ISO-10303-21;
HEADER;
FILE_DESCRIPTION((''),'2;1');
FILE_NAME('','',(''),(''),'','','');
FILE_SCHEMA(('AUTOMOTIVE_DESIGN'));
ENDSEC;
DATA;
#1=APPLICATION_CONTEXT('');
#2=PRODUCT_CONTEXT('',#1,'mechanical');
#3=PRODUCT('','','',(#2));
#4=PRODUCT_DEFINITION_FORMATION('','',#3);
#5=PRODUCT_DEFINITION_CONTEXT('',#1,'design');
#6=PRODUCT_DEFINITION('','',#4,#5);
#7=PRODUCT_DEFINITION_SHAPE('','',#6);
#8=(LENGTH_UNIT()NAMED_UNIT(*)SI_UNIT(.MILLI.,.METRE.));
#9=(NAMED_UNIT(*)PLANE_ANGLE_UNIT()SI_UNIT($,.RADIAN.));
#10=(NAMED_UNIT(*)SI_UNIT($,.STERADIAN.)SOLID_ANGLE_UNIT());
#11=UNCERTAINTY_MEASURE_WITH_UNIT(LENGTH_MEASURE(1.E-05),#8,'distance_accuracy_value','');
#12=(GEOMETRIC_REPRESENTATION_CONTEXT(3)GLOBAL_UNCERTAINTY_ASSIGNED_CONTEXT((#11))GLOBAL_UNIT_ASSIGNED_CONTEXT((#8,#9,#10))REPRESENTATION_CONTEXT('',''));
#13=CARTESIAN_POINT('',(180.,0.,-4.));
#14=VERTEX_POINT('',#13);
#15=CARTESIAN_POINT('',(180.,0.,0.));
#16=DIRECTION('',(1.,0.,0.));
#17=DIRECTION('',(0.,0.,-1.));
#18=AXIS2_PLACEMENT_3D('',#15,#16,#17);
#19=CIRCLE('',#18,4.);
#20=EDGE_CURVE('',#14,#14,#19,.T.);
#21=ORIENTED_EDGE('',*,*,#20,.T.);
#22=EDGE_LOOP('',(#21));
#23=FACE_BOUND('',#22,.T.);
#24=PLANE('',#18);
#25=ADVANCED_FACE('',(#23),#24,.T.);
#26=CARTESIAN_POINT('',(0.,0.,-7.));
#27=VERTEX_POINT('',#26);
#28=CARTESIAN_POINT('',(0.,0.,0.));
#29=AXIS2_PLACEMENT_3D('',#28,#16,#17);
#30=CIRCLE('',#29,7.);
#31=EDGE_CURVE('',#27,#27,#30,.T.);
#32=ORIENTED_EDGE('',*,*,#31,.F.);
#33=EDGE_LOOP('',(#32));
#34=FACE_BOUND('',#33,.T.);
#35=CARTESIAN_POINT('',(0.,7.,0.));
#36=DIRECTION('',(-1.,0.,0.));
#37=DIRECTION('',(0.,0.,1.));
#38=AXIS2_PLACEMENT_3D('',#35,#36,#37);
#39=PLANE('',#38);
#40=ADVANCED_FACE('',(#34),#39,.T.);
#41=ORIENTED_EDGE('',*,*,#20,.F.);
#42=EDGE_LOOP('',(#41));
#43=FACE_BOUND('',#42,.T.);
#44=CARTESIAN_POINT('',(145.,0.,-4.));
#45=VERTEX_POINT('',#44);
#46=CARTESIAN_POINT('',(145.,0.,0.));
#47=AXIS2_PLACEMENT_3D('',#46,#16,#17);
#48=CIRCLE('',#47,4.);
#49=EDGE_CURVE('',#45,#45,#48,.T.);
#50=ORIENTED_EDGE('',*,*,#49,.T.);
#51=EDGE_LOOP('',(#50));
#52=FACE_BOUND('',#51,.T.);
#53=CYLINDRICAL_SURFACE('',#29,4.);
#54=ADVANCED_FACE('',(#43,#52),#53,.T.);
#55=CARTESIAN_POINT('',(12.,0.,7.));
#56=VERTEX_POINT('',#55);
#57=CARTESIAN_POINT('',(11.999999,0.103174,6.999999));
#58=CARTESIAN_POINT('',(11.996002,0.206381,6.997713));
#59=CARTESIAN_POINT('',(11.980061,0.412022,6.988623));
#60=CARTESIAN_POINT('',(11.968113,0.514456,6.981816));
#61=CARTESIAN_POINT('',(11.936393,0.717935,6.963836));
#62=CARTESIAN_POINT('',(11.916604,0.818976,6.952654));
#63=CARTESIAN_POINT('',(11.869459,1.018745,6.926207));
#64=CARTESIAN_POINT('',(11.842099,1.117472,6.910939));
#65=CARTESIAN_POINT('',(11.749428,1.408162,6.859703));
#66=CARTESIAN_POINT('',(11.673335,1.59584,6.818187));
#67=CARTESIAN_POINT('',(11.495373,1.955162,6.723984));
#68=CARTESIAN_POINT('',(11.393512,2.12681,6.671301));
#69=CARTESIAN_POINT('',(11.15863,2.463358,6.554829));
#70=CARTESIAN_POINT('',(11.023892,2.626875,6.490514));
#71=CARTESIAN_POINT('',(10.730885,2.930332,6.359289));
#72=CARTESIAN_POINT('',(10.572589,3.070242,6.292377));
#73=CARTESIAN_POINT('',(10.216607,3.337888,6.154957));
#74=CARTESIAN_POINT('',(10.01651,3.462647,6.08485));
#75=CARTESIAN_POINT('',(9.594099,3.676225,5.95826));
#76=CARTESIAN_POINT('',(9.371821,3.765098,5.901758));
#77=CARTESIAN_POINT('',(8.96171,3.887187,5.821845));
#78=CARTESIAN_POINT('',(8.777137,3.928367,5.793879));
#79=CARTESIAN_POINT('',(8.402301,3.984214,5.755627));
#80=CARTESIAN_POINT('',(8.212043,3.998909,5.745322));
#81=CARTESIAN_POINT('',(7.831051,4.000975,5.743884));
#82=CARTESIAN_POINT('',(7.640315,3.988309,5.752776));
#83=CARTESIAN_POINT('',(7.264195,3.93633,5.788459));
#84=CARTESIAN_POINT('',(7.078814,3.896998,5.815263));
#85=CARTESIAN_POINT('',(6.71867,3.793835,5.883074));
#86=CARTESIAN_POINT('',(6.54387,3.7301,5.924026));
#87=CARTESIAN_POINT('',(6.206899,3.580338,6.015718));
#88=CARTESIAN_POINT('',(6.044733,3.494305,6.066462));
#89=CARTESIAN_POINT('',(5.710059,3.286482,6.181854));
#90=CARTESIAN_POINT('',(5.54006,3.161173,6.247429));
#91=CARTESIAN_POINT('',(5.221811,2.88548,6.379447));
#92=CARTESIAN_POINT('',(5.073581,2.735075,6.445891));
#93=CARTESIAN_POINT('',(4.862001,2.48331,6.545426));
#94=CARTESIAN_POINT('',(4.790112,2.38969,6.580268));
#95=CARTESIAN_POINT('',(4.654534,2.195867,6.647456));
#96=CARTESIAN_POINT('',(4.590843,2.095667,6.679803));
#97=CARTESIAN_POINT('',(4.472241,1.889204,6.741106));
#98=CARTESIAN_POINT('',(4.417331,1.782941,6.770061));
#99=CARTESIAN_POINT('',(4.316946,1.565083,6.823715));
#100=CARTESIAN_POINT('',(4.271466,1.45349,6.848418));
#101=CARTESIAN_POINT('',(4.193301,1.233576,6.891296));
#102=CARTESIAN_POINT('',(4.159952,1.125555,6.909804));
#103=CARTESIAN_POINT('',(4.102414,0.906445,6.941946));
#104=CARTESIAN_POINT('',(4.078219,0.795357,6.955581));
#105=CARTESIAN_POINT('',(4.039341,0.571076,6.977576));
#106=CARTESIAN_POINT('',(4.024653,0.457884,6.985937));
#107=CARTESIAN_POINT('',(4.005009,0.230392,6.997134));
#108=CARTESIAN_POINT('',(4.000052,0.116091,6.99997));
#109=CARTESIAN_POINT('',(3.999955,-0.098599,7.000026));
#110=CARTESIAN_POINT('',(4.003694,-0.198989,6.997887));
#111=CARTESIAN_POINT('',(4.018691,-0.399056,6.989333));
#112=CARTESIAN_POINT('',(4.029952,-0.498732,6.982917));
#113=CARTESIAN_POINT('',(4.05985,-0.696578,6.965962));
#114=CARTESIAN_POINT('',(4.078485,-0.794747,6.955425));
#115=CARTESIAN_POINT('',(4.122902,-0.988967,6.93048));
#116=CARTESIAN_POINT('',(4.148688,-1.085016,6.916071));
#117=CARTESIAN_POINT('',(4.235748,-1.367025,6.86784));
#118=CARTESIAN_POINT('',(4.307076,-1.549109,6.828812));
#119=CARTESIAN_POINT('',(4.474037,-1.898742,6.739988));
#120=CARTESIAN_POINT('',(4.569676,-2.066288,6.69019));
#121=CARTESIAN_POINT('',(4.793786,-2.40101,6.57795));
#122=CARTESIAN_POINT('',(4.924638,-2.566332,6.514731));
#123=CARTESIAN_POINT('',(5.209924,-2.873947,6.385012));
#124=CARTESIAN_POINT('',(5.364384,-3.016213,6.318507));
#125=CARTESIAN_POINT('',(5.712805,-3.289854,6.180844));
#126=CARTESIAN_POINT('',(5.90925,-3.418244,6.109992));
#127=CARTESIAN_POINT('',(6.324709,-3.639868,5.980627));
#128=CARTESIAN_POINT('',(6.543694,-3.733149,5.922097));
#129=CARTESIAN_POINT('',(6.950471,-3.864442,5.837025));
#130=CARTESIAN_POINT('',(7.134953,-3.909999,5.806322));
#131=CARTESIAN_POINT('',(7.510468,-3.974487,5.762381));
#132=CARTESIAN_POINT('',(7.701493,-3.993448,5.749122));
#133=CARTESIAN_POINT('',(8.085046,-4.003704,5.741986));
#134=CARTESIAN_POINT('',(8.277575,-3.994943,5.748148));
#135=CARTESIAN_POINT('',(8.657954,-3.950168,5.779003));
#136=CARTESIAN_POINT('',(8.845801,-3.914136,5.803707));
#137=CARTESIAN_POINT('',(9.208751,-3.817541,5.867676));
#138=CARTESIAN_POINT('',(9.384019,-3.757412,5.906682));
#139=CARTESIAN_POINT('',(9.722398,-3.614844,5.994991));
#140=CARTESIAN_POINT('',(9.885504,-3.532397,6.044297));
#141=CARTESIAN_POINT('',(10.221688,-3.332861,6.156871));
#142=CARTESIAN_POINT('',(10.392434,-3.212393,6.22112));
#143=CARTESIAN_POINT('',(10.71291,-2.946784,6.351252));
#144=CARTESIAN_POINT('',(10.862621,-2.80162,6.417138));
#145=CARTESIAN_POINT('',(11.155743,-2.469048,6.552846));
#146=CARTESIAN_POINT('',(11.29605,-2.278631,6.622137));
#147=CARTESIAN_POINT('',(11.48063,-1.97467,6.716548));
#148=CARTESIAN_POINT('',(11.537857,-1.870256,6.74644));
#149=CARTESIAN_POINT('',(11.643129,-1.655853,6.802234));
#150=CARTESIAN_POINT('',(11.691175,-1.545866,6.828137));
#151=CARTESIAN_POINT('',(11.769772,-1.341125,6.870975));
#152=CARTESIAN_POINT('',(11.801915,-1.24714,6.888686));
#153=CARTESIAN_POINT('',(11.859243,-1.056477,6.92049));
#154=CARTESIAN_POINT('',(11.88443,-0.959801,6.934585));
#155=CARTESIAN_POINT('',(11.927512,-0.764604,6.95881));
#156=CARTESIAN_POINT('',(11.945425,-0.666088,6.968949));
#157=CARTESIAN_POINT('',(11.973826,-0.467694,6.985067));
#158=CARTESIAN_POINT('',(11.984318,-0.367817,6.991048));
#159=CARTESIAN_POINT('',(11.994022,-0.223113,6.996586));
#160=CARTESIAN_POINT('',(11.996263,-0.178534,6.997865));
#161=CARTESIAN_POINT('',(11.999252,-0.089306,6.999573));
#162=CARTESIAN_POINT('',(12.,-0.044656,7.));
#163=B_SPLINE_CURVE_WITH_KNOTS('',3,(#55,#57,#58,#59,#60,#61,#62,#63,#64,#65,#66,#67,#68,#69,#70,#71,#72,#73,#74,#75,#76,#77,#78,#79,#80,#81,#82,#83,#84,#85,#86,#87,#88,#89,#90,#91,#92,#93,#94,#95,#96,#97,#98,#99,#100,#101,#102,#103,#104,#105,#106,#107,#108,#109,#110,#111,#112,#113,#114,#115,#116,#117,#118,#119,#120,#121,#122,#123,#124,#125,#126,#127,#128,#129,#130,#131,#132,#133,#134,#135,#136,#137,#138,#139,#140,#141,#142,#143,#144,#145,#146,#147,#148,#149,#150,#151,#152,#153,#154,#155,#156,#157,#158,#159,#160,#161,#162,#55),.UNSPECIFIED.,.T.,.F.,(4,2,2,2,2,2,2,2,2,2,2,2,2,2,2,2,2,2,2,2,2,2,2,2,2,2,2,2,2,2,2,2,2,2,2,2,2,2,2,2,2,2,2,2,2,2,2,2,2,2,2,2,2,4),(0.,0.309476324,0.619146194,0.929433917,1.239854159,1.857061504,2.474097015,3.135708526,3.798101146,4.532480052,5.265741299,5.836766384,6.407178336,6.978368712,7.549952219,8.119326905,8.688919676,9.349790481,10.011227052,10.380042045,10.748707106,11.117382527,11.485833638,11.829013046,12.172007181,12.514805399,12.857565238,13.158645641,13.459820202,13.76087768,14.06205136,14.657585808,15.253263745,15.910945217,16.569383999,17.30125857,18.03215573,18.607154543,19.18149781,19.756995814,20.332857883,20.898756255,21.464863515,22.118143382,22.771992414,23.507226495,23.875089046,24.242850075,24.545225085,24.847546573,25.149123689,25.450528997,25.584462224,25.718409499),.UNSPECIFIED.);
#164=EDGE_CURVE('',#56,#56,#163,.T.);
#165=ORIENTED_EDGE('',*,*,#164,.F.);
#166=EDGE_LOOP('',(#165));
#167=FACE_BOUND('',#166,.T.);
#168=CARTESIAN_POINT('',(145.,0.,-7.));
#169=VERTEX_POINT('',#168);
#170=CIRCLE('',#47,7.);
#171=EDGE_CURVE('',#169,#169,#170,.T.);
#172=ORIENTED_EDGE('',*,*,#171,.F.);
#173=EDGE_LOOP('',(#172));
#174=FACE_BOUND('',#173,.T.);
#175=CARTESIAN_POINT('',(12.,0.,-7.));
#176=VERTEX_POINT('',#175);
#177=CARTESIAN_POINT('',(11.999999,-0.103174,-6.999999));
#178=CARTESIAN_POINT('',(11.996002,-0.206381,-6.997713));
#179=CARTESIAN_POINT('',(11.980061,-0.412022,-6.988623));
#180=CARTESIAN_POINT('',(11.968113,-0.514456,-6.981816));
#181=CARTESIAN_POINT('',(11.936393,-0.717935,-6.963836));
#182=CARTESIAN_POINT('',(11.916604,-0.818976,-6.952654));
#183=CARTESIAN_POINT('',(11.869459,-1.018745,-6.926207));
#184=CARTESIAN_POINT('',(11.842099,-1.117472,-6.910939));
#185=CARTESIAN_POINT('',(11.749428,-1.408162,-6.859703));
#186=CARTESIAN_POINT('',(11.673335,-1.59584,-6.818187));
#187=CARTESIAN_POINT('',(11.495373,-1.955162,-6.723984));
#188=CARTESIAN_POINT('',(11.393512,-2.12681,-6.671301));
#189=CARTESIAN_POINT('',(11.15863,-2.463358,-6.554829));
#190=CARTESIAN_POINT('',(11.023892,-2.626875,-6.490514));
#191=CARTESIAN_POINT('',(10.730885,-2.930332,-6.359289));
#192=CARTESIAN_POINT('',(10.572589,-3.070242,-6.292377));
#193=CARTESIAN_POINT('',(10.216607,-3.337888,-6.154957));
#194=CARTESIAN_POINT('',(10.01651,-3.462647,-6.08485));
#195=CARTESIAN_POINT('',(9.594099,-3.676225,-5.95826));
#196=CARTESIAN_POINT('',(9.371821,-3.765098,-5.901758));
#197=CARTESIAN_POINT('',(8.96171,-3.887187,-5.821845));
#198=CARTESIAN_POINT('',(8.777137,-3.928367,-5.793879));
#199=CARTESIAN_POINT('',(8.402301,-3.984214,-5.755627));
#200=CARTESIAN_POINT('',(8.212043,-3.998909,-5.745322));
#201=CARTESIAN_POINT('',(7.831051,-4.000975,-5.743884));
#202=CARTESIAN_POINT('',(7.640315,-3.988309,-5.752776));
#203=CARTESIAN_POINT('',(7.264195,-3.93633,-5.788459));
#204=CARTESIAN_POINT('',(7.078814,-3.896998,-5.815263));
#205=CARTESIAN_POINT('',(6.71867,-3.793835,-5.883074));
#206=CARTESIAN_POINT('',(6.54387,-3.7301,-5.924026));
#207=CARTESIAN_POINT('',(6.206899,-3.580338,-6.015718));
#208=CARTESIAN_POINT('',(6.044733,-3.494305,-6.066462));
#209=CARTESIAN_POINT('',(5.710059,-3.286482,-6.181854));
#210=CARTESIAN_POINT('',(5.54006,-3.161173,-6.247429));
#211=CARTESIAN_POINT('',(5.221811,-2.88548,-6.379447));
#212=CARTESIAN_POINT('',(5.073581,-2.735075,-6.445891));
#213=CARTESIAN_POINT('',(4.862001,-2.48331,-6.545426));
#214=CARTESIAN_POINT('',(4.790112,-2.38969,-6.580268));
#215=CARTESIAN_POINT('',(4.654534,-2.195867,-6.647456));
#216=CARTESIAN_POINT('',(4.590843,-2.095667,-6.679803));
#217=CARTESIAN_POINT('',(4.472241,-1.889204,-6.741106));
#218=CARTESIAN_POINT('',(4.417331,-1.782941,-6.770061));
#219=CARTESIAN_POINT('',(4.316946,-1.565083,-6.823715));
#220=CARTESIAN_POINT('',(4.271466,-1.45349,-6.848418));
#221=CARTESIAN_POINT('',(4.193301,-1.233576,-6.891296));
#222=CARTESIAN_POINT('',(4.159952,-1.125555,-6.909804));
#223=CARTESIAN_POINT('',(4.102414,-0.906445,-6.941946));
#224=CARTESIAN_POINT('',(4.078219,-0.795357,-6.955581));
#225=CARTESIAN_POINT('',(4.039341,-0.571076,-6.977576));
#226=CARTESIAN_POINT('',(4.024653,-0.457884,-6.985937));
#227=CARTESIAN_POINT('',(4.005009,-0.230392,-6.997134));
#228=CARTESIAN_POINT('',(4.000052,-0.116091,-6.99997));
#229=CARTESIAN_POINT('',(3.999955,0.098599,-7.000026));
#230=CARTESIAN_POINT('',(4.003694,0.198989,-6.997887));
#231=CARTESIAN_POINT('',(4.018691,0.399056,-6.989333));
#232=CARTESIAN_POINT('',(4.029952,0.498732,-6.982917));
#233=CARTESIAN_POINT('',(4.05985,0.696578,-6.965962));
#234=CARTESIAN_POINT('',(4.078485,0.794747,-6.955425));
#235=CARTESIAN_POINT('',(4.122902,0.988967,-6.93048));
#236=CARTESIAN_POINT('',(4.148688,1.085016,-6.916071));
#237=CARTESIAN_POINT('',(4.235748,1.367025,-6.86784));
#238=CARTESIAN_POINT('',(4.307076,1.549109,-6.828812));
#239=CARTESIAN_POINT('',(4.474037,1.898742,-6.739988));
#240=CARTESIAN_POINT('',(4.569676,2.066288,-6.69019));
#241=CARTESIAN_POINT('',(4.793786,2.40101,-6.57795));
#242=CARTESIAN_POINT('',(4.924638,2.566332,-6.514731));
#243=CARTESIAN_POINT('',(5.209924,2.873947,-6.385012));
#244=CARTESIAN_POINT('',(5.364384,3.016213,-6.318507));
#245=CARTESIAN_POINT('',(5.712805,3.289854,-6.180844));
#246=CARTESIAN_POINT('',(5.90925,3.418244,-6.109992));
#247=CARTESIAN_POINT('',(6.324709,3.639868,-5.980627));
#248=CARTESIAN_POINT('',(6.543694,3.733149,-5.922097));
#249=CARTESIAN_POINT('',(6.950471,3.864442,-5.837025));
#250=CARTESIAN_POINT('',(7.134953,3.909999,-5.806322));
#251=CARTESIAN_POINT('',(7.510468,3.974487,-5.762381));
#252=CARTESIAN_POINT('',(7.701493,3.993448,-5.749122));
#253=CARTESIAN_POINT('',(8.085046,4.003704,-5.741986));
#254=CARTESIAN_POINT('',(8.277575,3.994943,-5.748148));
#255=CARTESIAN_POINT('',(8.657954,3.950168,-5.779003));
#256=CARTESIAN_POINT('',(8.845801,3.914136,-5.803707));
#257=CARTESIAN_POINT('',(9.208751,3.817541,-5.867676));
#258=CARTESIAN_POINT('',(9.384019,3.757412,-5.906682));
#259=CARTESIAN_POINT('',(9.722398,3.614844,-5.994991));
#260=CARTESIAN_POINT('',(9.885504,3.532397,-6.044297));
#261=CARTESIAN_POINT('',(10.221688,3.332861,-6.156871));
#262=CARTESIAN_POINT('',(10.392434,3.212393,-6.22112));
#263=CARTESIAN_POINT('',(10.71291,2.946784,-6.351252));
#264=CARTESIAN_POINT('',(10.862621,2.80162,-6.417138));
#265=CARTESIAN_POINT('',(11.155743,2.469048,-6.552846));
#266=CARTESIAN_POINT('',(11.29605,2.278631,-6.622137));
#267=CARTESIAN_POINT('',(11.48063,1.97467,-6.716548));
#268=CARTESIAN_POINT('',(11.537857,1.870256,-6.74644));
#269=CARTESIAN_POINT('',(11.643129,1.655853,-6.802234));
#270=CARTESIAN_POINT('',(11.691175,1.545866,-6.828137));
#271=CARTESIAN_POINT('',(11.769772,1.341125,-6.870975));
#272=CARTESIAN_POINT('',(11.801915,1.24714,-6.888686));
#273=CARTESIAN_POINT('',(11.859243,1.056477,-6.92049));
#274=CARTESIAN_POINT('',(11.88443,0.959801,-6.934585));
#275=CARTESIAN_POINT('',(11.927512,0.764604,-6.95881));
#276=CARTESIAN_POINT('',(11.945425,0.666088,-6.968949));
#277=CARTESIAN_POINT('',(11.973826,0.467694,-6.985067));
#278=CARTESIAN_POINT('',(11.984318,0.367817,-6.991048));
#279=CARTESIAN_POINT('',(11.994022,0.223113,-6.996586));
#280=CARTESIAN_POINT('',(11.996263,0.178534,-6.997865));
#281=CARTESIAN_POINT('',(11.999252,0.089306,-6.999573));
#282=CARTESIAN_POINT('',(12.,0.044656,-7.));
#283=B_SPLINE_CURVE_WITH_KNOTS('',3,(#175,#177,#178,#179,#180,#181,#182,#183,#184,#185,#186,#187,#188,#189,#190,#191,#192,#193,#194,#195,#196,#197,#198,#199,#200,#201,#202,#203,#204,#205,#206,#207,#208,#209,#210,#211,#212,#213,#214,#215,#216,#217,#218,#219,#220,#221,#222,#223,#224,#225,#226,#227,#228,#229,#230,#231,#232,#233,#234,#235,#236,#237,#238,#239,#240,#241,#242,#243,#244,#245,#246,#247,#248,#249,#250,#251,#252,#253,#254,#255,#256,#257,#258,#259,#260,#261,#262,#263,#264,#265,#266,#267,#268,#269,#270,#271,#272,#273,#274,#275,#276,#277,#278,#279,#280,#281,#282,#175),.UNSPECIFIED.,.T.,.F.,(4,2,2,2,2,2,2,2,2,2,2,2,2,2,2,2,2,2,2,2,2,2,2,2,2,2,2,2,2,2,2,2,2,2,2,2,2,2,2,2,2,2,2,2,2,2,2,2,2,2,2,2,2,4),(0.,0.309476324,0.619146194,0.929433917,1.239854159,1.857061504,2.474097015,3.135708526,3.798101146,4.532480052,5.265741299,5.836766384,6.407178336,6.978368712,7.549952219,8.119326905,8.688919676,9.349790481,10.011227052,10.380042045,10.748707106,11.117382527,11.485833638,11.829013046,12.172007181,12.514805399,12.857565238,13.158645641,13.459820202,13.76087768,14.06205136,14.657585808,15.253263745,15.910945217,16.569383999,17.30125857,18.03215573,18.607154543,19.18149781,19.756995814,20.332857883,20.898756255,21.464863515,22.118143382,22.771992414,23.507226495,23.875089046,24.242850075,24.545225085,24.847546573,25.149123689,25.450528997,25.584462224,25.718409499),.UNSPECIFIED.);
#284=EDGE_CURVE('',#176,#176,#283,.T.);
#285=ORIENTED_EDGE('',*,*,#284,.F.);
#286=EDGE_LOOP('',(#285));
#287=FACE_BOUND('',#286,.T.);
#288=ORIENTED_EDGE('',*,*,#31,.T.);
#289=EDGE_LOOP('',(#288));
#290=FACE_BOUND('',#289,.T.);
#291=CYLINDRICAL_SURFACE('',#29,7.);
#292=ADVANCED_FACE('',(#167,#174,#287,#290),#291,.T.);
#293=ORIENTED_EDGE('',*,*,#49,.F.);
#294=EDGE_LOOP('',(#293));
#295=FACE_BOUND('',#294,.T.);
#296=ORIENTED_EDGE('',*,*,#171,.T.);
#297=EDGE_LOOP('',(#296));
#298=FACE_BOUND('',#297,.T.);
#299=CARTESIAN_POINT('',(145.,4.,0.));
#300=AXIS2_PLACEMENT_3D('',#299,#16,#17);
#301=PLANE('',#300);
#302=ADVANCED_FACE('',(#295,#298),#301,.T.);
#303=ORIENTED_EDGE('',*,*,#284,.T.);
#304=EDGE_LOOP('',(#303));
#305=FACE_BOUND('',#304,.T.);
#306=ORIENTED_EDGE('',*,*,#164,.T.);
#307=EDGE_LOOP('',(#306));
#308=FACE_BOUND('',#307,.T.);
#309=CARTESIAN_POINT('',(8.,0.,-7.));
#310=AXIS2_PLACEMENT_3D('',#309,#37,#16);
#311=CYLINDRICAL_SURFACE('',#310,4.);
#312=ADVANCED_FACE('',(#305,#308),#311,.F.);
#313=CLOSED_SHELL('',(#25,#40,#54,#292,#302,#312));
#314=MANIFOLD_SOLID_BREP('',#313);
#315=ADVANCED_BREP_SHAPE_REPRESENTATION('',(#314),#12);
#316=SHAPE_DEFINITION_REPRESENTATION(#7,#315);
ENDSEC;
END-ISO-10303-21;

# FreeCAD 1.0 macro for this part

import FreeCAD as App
import Part
import Sketcher
from FreeCAD import Vector
Q = App.Units.Quantity


def add_polygon(sketch, points):
    """Adds a closed chain of lines whose ends are joined by coincident constraints."""
    first, n = sketch.GeometryCount, len(points)
    for a, b in zip(points, points[1:] + points[:1]):
        sketch.addGeometry(Part.LineSegment(App.Vector(*a, 0), App.Vector(*b, 0)), False)
    for i in range(n):
        sketch.addConstraint(Sketcher.Constraint("Coincident", first + i, 2, first + (i + 1) % n, 1))

doc = App.newDocument("Part")
body = doc.addObject("PartDesign::Body", "Body")

sketch1 = doc.addObject("Sketcher::SketchObject", "Sketch")
body.addObject(sketch1)
sketch1.AttachmentSupport = (doc.XY_Plane, [""])
sketch1.MapMode = "FlatFace"
add_polygon(sketch1, [(0, 7), (0, 0), (180, 0), (180, 4), (145, 4), (145, 7)])
sketch1.addConstraint(Sketcher.Constraint("Vertical", 0))
sketch1.addConstraint(Sketcher.Constraint("Horizontal", 1))
sketch1.addConstraint(Sketcher.Constraint("Vertical", 2))
sketch1.addConstraint(Sketcher.Constraint("Horizontal", 3))
sketch1.addConstraint(Sketcher.Constraint("Vertical", 4))
sketch1.addConstraint(Sketcher.Constraint("Horizontal", 5))
sketch1.addConstraint(Sketcher.Constraint("Coincident", 0, 2, -1, 1))
sketch1.addConstraint(Sketcher.Constraint("DistanceX", 1, 1, 1, 2, Q("180 mm")))
sketch1.addConstraint(Sketcher.Constraint("DistanceX", 3, 2, 3, 1, Q("35 mm")))
sketch1.addConstraint(Sketcher.Constraint("DistanceY", 0, 2, 0, 1, Q("7 mm")))
sketch1.addConstraint(Sketcher.Constraint("DistanceY", 2, 1, 2, 2, Q("4 mm")))
revolution = doc.addObject("PartDesign::Revolution", "Revolution")
body.addObject(revolution)
revolution.Profile = sketch1
revolution.ReferenceAxis = (sketch1, ["H_Axis"])
revolution.Angle = 360

sketch2 = doc.addObject("Sketcher::SketchObject", "Sketch001")
body.addObject(sketch2)
sketch2.AttachmentSupport = (doc.XY_Plane, [""])
sketch2.MapMode = "FlatFace"
sketch2.addGeometry(Part.Circle(Vector(8, 0, 0), Vector(0, 0, 1), 4), False)
sketch2.addConstraint(Sketcher.Constraint("PointOnObject", 0, 3, -1))
sketch2.addConstraint(Sketcher.Constraint("Diameter", 0, Q("8 mm")))
sketch2.addConstraint(Sketcher.Constraint("DistanceX", -1, 1, 0, 3, Q("8 mm")))
pocket1 = doc.addObject("PartDesign::Pocket", "Pocket")
body.addObject(pocket1)
pocket1.Profile = sketch2
pocket1.Type = "ThroughAll"
pocket1.Midplane = True

doc.recompute()
